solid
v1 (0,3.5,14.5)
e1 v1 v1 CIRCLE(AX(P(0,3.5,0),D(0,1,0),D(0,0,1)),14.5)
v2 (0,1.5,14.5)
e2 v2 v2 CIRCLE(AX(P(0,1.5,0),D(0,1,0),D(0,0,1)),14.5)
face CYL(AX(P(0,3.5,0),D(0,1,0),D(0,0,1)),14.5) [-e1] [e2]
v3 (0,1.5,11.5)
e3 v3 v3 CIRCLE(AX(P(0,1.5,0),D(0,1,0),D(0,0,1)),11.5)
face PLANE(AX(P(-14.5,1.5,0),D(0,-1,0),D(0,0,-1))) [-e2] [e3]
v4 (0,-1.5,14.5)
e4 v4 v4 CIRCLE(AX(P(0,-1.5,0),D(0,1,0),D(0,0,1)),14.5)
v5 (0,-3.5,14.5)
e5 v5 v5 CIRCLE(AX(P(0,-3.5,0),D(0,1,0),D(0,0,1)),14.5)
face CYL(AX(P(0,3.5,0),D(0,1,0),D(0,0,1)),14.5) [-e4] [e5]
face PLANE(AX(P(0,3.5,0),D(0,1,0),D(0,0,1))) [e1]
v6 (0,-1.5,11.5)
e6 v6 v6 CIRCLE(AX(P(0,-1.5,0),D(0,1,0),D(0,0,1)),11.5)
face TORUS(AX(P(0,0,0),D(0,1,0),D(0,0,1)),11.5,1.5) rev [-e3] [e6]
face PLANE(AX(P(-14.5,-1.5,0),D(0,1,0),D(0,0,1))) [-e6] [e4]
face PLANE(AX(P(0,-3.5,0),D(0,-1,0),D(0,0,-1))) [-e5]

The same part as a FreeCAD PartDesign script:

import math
import FreeCAD as App
import Part
import Sketcher

V = App.Vector
Q = App.Units.Quantity

doc = App.newDocument("Part")
body = doc.addObject("PartDesign::Body", "Body")

sketch1 = doc.addObject("Sketcher::SketchObject", "Sketch")
body.addObject(sketch1)
sketch1.AttachmentSupport = (doc.XY_Plane, [""])
sketch1.MapMode = "FlatFace"
sketch1.addGeometry([
    Part.LineSegment(V(0, 3.5, 0), V(-14.5, 3.5, 0)),
    Part.LineSegment(V(-14.5, 3.5, 0), V(-14.5, 1.5, 0)),
    Part.LineSegment(V(-14.5, 1.5, 0), V(-11.5, 1.5, 0)),
    Part.ArcOfCircle(Part.Circle(V(-11.5, 0, 0), V(0, 0, 1), 1.5), math.radians(-90), math.radians(90)),
    Part.LineSegment(V(-11.5, -1.5, 0), V(-14.5, -1.5, 0)),
    Part.LineSegment(V(-14.5, -1.5, 0), V(-14.5, -3.5, 0)),
    Part.LineSegment(V(-14.5, -3.5, 0), V(0, -3.5, 0)),
    Part.LineSegment(V(0, -3.5, 0), V(0, 3.5, 0)),
], False)
sketch1.addConstraint([
    Sketcher.Constraint("Coincident", 0, 2, 1, 1),
    Sketcher.Constraint("Coincident", 1, 2, 2, 1),
    Sketcher.Constraint("Tangent", 2, 2, 3, 2),
    Sketcher.Constraint("Tangent", 3, 1, 4, 1),
    Sketcher.Constraint("Coincident", 4, 2, 5, 1),
    Sketcher.Constraint("Coincident", 5, 2, 6, 1),
    Sketcher.Constraint("Coincident", 6, 2, 7, 1),
    Sketcher.Constraint("Coincident", 7, 2, 0, 1),
    Sketcher.Constraint("Horizontal", 0),
    Sketcher.Constraint("Vertical", 1),
    Sketcher.Constraint("Horizontal", 2),
    Sketcher.Constraint("Horizontal", 4),
    Sketcher.Constraint("Vertical", 5),
    Sketcher.Constraint("Horizontal", 6),
    Sketcher.Constraint("Vertical", 7),
    Sketcher.Constraint("Symmetric", 6, 2, 7, 2, -1, 1),
    Sketcher.Constraint("Symmetric", 1, 2, 4, 2, -1),
    Sketcher.Constraint("Radius", 3, Q("1.5 mm")),
    Sketcher.Constraint("DistanceX", 2, 1, 2, 2, Q("3 mm")),
    Sketcher.Constraint("DistanceY", 1, 2, 1, 1, Q("2 mm")),
    Sketcher.Constraint("DistanceX", 0, 2, 0, 1, Q("14.5 mm")),
])
revolution = doc.addObject("PartDesign::Revolution", "Revolution")
body.addObject(revolution)
revolution.Profile = sketch1
revolution.ReferenceAxis = (sketch1, ["V_Axis"])
revolution.Angle = 360

doc.recompute()
